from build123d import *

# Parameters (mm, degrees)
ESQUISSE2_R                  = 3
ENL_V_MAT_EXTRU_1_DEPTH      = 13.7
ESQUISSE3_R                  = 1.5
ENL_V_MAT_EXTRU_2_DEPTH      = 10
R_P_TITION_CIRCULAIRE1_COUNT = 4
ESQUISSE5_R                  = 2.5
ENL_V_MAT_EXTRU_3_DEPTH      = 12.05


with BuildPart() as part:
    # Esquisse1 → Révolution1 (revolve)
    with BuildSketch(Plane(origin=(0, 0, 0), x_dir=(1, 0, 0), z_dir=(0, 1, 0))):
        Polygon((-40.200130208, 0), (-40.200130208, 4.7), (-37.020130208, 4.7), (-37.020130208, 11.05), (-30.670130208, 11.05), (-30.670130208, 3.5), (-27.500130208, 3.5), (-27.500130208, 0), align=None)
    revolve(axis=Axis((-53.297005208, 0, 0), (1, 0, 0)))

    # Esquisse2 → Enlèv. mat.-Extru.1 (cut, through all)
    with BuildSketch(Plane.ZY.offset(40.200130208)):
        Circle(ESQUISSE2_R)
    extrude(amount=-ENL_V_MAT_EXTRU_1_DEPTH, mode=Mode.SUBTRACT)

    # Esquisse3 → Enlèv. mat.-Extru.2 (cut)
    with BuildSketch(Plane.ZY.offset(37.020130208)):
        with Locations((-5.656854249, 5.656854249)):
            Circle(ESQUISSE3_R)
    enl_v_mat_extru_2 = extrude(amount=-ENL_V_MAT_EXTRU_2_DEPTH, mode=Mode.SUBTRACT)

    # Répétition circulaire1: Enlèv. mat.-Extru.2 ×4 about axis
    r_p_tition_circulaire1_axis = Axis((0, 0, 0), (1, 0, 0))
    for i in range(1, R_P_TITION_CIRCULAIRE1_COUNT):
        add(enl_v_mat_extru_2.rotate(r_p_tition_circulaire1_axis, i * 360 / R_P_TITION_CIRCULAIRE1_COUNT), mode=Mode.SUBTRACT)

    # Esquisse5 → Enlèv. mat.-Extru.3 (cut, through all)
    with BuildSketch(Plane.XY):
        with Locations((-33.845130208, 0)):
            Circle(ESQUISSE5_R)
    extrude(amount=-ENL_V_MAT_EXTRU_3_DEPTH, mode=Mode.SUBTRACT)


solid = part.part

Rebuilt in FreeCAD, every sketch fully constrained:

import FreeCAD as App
import Part
import Sketcher
Q = App.Units.Quantity


def add_polygon(sketch, points):
    """Adds a closed chain of lines whose ends are joined by coincident constraints."""
    first, n = sketch.GeometryCount, len(points)
    for a, b in zip(points, points[1:] + points[:1]):
        sketch.addGeometry(Part.LineSegment(App.Vector(*a, 0), App.Vector(*b, 0)), False)
    for i in range(n):
        sketch.addConstraint(Sketcher.Constraint("Coincident", first + i, 2, first + (i + 1) % n, 1))

doc = App.newDocument("Part")
body = doc.addObject("PartDesign::Body", "Body")

# Sketch on XZ plane
sketch1 = body.newObject("Sketcher::SketchObject", "Sketch")
sketch1.AttachmentSupport = (doc.getObject("XZ_Plane"), [""])
sketch1.MapMode = "FlatFace"
add_polygon(sketch1, [(-40.2, -4.7), (-40.2, 0), (-27.5, 0), (-27.5, -3.5), (-30.7, -3.5), (-30.7, -11.1), (-37, -11.1), (-37, -4.7)])  # lines 0-7
sketch1.addConstraint([
    Sketcher.Constraint("Vertical", 0),
    Sketcher.Constraint("Horizontal", 1),
    Sketcher.Constraint("Vertical", 2),
    Sketcher.Constraint("Horizontal", 3),
    Sketcher.Constraint("Vertical", 4),
    Sketcher.Constraint("Horizontal", 5),
    Sketcher.Constraint("Vertical", 6),
    Sketcher.Constraint("Horizontal", 7),
    Sketcher.Constraint("PointOnObject", 0, 2, -1),
    Sketcher.Constraint("Equal", 5, 6),
    Sketcher.Constraint("DistanceX", 1, 1, 1, 2, Q("12.7 mm")),
    Sketcher.Constraint("DistanceY", 0, 1, 0, 2, Q("4.7 mm")),
    Sketcher.Constraint("DistanceY", 2, 2, 2, 1, Q("3.5 mm")),
    Sketcher.Constraint("DistanceX", 3, 2, 3, 1, Q("3.17 mm")),
    Sketcher.Constraint("DistanceX", 5, 2, 5, 1, Q("6.35 mm")),
    Sketcher.Constraint("DistanceX", 0, 2, -1, 1, Q("40.20013 mm")),
])
revolution = body.newObject("PartDesign::Revolution", "Revolution")
revolution.Profile = sketch1
revolution.ReferenceAxis = (sketch1, ["H_Axis"])
revolution.Angle = 360

# Sketch on YZ plane
sketch2 = body.newObject("Sketcher::SketchObject", "Sketch001")
sketch2.AttachmentSupport = (doc.getObject("YZ_Plane"), [""])
sketch2.MapMode = "FlatFace"
sketch2.AttachmentOffset = App.Placement(App.Vector(0, 0, -40.20013), App.Rotation())
sketch2.addGeometry(Part.Circle(App.Vector(0, 0, 0), App.Vector(0, 0, 1), 3), False)
sketch2.addConstraint([
    Sketcher.Constraint("Coincident", 0, 3, -1, 1),
    Sketcher.Constraint("Diameter", 0, Q("6 mm")),
])
pocket1 = body.newObject("PartDesign::Pocket", "Pocket")
pocket1.Profile = sketch2
pocket1.Type = "ThroughAll"
pocket1.Reversed = True

# Sketch on YZ plane
sketch3 = body.newObject("Sketcher::SketchObject", "Sketch002")
sketch3.AttachmentSupport = (doc.getObject("YZ_Plane"), [""])
sketch3.MapMode = "FlatFace"
sketch3.AttachmentOffset = App.Placement(App.Vector(0, 0, -37.02013), App.Rotation())
sketch3.addGeometry(Part.Circle(App.Vector(5.7, -5.7, 0), App.Vector(0, 0, 1), 1.5), False)
sketch3.addConstraint([
    Sketcher.Constraint("Diameter", 0, Q("3 mm")),
    Sketcher.Constraint("DistanceX", -1, 1, 0, 3, Q("5.656854 mm")),
    Sketcher.Constraint("DistanceY", 0, 3, -1, 1, Q("5.656854 mm")),
])
pocket2 = body.newObject("PartDesign::Pocket", "Pocket001")
pocket2.Profile = sketch3
pocket2.Length = 10
pocket2.Reversed = True
doc.recompute()

polarpattern = body.newObject("PartDesign::PolarPattern", "PolarPattern")
polarpattern.Originals = [pocket2]
polarpattern.Axis = (doc.getObject("X_Axis"), [""])
polarpattern.Angle = 360
polarpattern.Occurrences = 4
body.Tip = polarpattern

# Sketch on XY plane
sketch4 = body.newObject("Sketcher::SketchObject", "Sketch003")
sketch4.AttachmentSupport = (doc.getObject("XY_Plane"), [""])
sketch4.MapMode = "FlatFace"
sketch4.addGeometry(Part.Circle(App.Vector(-33.8, 0, 0), App.Vector(0, 0, 1), 2.5), False)
sketch4.addConstraint([
    Sketcher.Constraint("PointOnObject", 0, 3, -1),
    Sketcher.Constraint("Diameter", 0, Q("5 mm")),
    Sketcher.Constraint("DistanceX", 0, 3, -1, 1, Q("33.84513 mm")),
])
pocket3 = body.newObject("PartDesign::Pocket", "Pocket002")
pocket3.Profile = sketch4
pocket3.Type = "ThroughAll"

doc.recompute()
